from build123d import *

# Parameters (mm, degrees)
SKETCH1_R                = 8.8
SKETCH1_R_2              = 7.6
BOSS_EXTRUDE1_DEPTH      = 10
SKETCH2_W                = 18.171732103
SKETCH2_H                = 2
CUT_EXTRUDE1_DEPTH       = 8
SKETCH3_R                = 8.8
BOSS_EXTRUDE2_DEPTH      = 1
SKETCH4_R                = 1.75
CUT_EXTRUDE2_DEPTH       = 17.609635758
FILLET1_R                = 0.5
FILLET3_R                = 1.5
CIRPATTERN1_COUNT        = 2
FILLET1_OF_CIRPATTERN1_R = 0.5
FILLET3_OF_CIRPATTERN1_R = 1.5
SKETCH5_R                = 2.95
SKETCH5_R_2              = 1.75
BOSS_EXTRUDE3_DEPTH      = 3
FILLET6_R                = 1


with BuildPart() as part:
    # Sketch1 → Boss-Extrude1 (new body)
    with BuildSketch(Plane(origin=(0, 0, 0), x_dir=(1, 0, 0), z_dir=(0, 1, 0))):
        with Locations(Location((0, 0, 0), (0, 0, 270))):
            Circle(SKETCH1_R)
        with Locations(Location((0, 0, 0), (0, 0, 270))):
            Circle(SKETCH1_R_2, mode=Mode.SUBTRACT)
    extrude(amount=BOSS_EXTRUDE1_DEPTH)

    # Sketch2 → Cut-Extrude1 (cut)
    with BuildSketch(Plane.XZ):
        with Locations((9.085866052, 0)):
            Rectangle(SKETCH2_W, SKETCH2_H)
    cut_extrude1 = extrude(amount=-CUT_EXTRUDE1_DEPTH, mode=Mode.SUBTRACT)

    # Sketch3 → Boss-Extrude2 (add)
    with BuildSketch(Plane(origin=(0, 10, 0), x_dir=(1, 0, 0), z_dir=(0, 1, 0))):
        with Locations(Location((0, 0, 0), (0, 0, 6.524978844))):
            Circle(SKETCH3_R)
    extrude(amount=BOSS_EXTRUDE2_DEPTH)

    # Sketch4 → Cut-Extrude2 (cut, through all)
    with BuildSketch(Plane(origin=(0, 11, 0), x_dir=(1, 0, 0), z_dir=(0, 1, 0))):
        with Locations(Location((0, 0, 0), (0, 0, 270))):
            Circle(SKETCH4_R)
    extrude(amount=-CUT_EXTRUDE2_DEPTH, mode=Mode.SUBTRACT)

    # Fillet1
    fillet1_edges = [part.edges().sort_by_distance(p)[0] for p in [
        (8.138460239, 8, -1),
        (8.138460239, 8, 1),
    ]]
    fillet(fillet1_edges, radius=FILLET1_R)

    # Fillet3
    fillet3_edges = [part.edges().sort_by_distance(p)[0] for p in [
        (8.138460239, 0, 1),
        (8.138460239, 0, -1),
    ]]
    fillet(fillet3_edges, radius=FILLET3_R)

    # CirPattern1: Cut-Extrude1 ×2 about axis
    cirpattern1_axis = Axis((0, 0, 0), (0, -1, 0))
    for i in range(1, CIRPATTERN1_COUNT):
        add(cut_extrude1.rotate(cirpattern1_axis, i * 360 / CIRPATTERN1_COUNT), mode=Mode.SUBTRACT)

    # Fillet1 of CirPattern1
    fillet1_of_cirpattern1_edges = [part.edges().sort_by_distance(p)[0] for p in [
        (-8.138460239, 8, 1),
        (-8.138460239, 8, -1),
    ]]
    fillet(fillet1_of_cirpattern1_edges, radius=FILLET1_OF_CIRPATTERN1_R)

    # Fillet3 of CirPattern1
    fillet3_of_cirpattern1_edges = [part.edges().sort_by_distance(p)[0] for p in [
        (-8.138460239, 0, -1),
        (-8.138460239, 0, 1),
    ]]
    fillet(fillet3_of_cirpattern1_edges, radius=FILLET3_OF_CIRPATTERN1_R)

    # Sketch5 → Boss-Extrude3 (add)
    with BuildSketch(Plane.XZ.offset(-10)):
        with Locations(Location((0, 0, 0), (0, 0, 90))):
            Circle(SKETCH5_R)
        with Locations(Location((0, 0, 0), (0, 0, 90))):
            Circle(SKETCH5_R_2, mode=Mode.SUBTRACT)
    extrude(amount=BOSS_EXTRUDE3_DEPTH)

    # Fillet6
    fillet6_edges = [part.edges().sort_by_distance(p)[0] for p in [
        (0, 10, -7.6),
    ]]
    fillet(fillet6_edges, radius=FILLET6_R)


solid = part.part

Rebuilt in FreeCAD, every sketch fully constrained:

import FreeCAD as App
import Part
import Sketcher
from FreeCAD import Vector


def edges_at(feature, points):
    """Names of the edges that pass closest to the given points."""
    edges = feature.Shape.Edges
    near = lambda p: min(range(len(edges)), key=lambda i: edges[i].distToShape(Part.Vertex(*p))[0])
    return sorted({f"Edge{near(p) + 1}" for p in points})

doc = App.newDocument("Part")
body = doc.addObject("PartDesign::Body", "Body")

# Sketch on XZ plane
sketch1 = body.newObject("Sketcher::SketchObject", "Sketch")
sketch1.AttachmentSupport = (doc.getObject("XZ_Plane"), [""])
sketch1.MapMode = "FlatFace"
sketch1.addGeometry([
    Part.Circle(Vector(0, 0, 0), Vector(0, 0, 1), 8.8),
    Part.Circle(Vector(0, 0, 0), Vector(0, 0, 1), 7.6),
], False)
sketch1.addConstraint([
    Sketcher.Constraint("Coincident", 0, 3, -1, 1),
    Sketcher.Constraint("Coincident", 1, 3, -1, 1),
    Sketcher.Constraint("Diameter", 0, 17.6),
    Sketcher.Constraint("Diameter", 1, 15.2),
])
pad1 = body.newObject("PartDesign::Pad", "Pad")
pad1.Profile = sketch1
pad1.Length = 10
pad1.Reversed = True

# Sketch on XZ plane
sketch2 = body.newObject("Sketcher::SketchObject", "Sketch001")
sketch2.AttachmentSupport = (doc.getObject("XZ_Plane"), [""])
sketch2.MapMode = "FlatFace"
sketch2.addGeometry([
    Part.LineSegment(Vector(0, 1, 0), Vector(0, -1, 0)),
    Part.LineSegment(Vector(0, -1, 0), Vector(18.171732, -1, 0)),
    Part.LineSegment(Vector(18.171732, -1, 0), Vector(18.171732, 1, 0)),
    Part.LineSegment(Vector(18.171732, 1, 0), Vector(0, 1, 0)),
], False)
sketch2.addConstraint([
    Sketcher.Constraint("Coincident", 0, 2, 1, 1),
    Sketcher.Constraint("Coincident", 1, 2, 2, 1),
    Sketcher.Constraint("Coincident", 2, 2, 3, 1),
    Sketcher.Constraint("Coincident", 3, 2, 0, 1),
    Sketcher.Constraint("Vertical", 0),
    Sketcher.Constraint("Horizontal", 1),
    Sketcher.Constraint("Vertical", 2),
    Sketcher.Constraint("Horizontal", 3),
    Sketcher.Constraint("Symmetric", 0, 2, 3, 2, -1, 1),
    Sketcher.Constraint("DistanceY", 0, 2, 0, 1, 2.0),
    Sketcher.Constraint("DistanceX", 1, 1, 1, 2, 18.171732),
])
pocket1 = body.newObject("PartDesign::Pocket", "Pocket")
pocket1.Profile = sketch2
pocket1.Length = 8

# Sketch on XZ plane
sketch3 = body.newObject("Sketcher::SketchObject", "Sketch002")
sketch3.AttachmentSupport = (doc.getObject("XZ_Plane"), [""])
sketch3.MapMode = "FlatFace"
sketch3.AttachmentOffset = App.Placement(Vector(0, 0, -10), App.Rotation())
sketch3.addGeometry(Part.Circle(Vector(0, 0, 0), Vector(0, 0, 1), 8.8), False)
sketch3.addConstraint([
    Sketcher.Constraint("Coincident", 0, 3, -1, 1),
    Sketcher.Constraint("Diameter", 0, 17.6),
])
pad2 = body.newObject("PartDesign::Pad", "Pad001")
pad2.Profile = sketch3
pad2.Length = 1
pad2.Reversed = True

# Sketch on XZ plane
sketch4 = body.newObject("Sketcher::SketchObject", "Sketch003")
sketch4.AttachmentSupport = (doc.getObject("XZ_Plane"), [""])
sketch4.MapMode = "FlatFace"
sketch4.AttachmentOffset = App.Placement(Vector(0, 0, -11), App.Rotation())
sketch4.addGeometry(Part.Circle(Vector(0, 0, 0), Vector(0, 0, 1), 1.75), False)
sketch4.addConstraint([
    Sketcher.Constraint("Coincident", 0, 3, -1, 1),
    Sketcher.Constraint("Diameter", 0, 3.5),
])
pocket2 = body.newObject("PartDesign::Pocket", "Pocket001")
pocket2.Profile = sketch4
pocket2.Type = "ThroughAll"
pocket2.Reversed = True
doc.recompute()

fillet = body.newObject("PartDesign::Fillet", "Fillet")
fillet.Base = (pocket2, edges_at(pocket2, [(8.138, 8, -1), (8.138, 8, 1)]))
fillet.Radius = 0.5
doc.recompute()

fillet2 = body.newObject("PartDesign::Fillet", "Fillet001")
fillet2.Base = (fillet, edges_at(fillet, [(8.138, 0, 1), (8.138, 0, -1)]))
fillet2.Radius = 1.5
doc.recompute()

polarpattern = body.newObject("PartDesign::PolarPattern", "PolarPattern")
polarpattern.Originals = [pocket1]
polarpattern.Axis = (doc.getObject("Y_Axis"), [""])
polarpattern.Angle = 360
polarpattern.Occurrences = 2
body.Tip = polarpattern
doc.recompute()

fillet3 = body.newObject("PartDesign::Fillet", "Fillet002")
fillet3.Base = (polarpattern, edges_at(polarpattern, [(-8.138, 8, 1), (-8.138, 8, -1)]))
fillet3.Radius = 0.5
doc.recompute()

fillet4 = body.newObject("PartDesign::Fillet", "Fillet003")
fillet4.Base = (fillet3, edges_at(fillet3, [(-8.138, 0, -1), (-8.138, 0, 1)]))
fillet4.Radius = 1.5

# Sketch on XZ plane
sketch5 = body.newObject("Sketcher::SketchObject", "Sketch004")
sketch5.AttachmentSupport = (doc.getObject("XZ_Plane"), [""])
sketch5.MapMode = "FlatFace"
sketch5.AttachmentOffset = App.Placement(Vector(0, 0, -10), App.Rotation())
sketch5.addGeometry([
    Part.Circle(Vector(0, 0, 0), Vector(0, 0, 1), 2.95),
    Part.Circle(Vector(0, 0, 0), Vector(0, 0, 1), 1.75),
], False)
sketch5.addConstraint([
    Sketcher.Constraint("Coincident", 0, 3, -1, 1),
    Sketcher.Constraint("Coincident", 1, 3, -1, 1),
    Sketcher.Constraint("Diameter", 0, 5.9),
    Sketcher.Constraint("Diameter", 1, 3.5),
])
pad3 = body.newObject("PartDesign::Pad", "Pad002")
pad3.Profile = sketch5
pad3.Length = 3
doc.recompute()

fillet5 = body.newObject("PartDesign::Fillet", "Fillet004")
fillet5.Base = (pad3, edges_at(pad3, [(0, 10, -7.6)]))
fillet5.Radius = 1

doc.recompute()
